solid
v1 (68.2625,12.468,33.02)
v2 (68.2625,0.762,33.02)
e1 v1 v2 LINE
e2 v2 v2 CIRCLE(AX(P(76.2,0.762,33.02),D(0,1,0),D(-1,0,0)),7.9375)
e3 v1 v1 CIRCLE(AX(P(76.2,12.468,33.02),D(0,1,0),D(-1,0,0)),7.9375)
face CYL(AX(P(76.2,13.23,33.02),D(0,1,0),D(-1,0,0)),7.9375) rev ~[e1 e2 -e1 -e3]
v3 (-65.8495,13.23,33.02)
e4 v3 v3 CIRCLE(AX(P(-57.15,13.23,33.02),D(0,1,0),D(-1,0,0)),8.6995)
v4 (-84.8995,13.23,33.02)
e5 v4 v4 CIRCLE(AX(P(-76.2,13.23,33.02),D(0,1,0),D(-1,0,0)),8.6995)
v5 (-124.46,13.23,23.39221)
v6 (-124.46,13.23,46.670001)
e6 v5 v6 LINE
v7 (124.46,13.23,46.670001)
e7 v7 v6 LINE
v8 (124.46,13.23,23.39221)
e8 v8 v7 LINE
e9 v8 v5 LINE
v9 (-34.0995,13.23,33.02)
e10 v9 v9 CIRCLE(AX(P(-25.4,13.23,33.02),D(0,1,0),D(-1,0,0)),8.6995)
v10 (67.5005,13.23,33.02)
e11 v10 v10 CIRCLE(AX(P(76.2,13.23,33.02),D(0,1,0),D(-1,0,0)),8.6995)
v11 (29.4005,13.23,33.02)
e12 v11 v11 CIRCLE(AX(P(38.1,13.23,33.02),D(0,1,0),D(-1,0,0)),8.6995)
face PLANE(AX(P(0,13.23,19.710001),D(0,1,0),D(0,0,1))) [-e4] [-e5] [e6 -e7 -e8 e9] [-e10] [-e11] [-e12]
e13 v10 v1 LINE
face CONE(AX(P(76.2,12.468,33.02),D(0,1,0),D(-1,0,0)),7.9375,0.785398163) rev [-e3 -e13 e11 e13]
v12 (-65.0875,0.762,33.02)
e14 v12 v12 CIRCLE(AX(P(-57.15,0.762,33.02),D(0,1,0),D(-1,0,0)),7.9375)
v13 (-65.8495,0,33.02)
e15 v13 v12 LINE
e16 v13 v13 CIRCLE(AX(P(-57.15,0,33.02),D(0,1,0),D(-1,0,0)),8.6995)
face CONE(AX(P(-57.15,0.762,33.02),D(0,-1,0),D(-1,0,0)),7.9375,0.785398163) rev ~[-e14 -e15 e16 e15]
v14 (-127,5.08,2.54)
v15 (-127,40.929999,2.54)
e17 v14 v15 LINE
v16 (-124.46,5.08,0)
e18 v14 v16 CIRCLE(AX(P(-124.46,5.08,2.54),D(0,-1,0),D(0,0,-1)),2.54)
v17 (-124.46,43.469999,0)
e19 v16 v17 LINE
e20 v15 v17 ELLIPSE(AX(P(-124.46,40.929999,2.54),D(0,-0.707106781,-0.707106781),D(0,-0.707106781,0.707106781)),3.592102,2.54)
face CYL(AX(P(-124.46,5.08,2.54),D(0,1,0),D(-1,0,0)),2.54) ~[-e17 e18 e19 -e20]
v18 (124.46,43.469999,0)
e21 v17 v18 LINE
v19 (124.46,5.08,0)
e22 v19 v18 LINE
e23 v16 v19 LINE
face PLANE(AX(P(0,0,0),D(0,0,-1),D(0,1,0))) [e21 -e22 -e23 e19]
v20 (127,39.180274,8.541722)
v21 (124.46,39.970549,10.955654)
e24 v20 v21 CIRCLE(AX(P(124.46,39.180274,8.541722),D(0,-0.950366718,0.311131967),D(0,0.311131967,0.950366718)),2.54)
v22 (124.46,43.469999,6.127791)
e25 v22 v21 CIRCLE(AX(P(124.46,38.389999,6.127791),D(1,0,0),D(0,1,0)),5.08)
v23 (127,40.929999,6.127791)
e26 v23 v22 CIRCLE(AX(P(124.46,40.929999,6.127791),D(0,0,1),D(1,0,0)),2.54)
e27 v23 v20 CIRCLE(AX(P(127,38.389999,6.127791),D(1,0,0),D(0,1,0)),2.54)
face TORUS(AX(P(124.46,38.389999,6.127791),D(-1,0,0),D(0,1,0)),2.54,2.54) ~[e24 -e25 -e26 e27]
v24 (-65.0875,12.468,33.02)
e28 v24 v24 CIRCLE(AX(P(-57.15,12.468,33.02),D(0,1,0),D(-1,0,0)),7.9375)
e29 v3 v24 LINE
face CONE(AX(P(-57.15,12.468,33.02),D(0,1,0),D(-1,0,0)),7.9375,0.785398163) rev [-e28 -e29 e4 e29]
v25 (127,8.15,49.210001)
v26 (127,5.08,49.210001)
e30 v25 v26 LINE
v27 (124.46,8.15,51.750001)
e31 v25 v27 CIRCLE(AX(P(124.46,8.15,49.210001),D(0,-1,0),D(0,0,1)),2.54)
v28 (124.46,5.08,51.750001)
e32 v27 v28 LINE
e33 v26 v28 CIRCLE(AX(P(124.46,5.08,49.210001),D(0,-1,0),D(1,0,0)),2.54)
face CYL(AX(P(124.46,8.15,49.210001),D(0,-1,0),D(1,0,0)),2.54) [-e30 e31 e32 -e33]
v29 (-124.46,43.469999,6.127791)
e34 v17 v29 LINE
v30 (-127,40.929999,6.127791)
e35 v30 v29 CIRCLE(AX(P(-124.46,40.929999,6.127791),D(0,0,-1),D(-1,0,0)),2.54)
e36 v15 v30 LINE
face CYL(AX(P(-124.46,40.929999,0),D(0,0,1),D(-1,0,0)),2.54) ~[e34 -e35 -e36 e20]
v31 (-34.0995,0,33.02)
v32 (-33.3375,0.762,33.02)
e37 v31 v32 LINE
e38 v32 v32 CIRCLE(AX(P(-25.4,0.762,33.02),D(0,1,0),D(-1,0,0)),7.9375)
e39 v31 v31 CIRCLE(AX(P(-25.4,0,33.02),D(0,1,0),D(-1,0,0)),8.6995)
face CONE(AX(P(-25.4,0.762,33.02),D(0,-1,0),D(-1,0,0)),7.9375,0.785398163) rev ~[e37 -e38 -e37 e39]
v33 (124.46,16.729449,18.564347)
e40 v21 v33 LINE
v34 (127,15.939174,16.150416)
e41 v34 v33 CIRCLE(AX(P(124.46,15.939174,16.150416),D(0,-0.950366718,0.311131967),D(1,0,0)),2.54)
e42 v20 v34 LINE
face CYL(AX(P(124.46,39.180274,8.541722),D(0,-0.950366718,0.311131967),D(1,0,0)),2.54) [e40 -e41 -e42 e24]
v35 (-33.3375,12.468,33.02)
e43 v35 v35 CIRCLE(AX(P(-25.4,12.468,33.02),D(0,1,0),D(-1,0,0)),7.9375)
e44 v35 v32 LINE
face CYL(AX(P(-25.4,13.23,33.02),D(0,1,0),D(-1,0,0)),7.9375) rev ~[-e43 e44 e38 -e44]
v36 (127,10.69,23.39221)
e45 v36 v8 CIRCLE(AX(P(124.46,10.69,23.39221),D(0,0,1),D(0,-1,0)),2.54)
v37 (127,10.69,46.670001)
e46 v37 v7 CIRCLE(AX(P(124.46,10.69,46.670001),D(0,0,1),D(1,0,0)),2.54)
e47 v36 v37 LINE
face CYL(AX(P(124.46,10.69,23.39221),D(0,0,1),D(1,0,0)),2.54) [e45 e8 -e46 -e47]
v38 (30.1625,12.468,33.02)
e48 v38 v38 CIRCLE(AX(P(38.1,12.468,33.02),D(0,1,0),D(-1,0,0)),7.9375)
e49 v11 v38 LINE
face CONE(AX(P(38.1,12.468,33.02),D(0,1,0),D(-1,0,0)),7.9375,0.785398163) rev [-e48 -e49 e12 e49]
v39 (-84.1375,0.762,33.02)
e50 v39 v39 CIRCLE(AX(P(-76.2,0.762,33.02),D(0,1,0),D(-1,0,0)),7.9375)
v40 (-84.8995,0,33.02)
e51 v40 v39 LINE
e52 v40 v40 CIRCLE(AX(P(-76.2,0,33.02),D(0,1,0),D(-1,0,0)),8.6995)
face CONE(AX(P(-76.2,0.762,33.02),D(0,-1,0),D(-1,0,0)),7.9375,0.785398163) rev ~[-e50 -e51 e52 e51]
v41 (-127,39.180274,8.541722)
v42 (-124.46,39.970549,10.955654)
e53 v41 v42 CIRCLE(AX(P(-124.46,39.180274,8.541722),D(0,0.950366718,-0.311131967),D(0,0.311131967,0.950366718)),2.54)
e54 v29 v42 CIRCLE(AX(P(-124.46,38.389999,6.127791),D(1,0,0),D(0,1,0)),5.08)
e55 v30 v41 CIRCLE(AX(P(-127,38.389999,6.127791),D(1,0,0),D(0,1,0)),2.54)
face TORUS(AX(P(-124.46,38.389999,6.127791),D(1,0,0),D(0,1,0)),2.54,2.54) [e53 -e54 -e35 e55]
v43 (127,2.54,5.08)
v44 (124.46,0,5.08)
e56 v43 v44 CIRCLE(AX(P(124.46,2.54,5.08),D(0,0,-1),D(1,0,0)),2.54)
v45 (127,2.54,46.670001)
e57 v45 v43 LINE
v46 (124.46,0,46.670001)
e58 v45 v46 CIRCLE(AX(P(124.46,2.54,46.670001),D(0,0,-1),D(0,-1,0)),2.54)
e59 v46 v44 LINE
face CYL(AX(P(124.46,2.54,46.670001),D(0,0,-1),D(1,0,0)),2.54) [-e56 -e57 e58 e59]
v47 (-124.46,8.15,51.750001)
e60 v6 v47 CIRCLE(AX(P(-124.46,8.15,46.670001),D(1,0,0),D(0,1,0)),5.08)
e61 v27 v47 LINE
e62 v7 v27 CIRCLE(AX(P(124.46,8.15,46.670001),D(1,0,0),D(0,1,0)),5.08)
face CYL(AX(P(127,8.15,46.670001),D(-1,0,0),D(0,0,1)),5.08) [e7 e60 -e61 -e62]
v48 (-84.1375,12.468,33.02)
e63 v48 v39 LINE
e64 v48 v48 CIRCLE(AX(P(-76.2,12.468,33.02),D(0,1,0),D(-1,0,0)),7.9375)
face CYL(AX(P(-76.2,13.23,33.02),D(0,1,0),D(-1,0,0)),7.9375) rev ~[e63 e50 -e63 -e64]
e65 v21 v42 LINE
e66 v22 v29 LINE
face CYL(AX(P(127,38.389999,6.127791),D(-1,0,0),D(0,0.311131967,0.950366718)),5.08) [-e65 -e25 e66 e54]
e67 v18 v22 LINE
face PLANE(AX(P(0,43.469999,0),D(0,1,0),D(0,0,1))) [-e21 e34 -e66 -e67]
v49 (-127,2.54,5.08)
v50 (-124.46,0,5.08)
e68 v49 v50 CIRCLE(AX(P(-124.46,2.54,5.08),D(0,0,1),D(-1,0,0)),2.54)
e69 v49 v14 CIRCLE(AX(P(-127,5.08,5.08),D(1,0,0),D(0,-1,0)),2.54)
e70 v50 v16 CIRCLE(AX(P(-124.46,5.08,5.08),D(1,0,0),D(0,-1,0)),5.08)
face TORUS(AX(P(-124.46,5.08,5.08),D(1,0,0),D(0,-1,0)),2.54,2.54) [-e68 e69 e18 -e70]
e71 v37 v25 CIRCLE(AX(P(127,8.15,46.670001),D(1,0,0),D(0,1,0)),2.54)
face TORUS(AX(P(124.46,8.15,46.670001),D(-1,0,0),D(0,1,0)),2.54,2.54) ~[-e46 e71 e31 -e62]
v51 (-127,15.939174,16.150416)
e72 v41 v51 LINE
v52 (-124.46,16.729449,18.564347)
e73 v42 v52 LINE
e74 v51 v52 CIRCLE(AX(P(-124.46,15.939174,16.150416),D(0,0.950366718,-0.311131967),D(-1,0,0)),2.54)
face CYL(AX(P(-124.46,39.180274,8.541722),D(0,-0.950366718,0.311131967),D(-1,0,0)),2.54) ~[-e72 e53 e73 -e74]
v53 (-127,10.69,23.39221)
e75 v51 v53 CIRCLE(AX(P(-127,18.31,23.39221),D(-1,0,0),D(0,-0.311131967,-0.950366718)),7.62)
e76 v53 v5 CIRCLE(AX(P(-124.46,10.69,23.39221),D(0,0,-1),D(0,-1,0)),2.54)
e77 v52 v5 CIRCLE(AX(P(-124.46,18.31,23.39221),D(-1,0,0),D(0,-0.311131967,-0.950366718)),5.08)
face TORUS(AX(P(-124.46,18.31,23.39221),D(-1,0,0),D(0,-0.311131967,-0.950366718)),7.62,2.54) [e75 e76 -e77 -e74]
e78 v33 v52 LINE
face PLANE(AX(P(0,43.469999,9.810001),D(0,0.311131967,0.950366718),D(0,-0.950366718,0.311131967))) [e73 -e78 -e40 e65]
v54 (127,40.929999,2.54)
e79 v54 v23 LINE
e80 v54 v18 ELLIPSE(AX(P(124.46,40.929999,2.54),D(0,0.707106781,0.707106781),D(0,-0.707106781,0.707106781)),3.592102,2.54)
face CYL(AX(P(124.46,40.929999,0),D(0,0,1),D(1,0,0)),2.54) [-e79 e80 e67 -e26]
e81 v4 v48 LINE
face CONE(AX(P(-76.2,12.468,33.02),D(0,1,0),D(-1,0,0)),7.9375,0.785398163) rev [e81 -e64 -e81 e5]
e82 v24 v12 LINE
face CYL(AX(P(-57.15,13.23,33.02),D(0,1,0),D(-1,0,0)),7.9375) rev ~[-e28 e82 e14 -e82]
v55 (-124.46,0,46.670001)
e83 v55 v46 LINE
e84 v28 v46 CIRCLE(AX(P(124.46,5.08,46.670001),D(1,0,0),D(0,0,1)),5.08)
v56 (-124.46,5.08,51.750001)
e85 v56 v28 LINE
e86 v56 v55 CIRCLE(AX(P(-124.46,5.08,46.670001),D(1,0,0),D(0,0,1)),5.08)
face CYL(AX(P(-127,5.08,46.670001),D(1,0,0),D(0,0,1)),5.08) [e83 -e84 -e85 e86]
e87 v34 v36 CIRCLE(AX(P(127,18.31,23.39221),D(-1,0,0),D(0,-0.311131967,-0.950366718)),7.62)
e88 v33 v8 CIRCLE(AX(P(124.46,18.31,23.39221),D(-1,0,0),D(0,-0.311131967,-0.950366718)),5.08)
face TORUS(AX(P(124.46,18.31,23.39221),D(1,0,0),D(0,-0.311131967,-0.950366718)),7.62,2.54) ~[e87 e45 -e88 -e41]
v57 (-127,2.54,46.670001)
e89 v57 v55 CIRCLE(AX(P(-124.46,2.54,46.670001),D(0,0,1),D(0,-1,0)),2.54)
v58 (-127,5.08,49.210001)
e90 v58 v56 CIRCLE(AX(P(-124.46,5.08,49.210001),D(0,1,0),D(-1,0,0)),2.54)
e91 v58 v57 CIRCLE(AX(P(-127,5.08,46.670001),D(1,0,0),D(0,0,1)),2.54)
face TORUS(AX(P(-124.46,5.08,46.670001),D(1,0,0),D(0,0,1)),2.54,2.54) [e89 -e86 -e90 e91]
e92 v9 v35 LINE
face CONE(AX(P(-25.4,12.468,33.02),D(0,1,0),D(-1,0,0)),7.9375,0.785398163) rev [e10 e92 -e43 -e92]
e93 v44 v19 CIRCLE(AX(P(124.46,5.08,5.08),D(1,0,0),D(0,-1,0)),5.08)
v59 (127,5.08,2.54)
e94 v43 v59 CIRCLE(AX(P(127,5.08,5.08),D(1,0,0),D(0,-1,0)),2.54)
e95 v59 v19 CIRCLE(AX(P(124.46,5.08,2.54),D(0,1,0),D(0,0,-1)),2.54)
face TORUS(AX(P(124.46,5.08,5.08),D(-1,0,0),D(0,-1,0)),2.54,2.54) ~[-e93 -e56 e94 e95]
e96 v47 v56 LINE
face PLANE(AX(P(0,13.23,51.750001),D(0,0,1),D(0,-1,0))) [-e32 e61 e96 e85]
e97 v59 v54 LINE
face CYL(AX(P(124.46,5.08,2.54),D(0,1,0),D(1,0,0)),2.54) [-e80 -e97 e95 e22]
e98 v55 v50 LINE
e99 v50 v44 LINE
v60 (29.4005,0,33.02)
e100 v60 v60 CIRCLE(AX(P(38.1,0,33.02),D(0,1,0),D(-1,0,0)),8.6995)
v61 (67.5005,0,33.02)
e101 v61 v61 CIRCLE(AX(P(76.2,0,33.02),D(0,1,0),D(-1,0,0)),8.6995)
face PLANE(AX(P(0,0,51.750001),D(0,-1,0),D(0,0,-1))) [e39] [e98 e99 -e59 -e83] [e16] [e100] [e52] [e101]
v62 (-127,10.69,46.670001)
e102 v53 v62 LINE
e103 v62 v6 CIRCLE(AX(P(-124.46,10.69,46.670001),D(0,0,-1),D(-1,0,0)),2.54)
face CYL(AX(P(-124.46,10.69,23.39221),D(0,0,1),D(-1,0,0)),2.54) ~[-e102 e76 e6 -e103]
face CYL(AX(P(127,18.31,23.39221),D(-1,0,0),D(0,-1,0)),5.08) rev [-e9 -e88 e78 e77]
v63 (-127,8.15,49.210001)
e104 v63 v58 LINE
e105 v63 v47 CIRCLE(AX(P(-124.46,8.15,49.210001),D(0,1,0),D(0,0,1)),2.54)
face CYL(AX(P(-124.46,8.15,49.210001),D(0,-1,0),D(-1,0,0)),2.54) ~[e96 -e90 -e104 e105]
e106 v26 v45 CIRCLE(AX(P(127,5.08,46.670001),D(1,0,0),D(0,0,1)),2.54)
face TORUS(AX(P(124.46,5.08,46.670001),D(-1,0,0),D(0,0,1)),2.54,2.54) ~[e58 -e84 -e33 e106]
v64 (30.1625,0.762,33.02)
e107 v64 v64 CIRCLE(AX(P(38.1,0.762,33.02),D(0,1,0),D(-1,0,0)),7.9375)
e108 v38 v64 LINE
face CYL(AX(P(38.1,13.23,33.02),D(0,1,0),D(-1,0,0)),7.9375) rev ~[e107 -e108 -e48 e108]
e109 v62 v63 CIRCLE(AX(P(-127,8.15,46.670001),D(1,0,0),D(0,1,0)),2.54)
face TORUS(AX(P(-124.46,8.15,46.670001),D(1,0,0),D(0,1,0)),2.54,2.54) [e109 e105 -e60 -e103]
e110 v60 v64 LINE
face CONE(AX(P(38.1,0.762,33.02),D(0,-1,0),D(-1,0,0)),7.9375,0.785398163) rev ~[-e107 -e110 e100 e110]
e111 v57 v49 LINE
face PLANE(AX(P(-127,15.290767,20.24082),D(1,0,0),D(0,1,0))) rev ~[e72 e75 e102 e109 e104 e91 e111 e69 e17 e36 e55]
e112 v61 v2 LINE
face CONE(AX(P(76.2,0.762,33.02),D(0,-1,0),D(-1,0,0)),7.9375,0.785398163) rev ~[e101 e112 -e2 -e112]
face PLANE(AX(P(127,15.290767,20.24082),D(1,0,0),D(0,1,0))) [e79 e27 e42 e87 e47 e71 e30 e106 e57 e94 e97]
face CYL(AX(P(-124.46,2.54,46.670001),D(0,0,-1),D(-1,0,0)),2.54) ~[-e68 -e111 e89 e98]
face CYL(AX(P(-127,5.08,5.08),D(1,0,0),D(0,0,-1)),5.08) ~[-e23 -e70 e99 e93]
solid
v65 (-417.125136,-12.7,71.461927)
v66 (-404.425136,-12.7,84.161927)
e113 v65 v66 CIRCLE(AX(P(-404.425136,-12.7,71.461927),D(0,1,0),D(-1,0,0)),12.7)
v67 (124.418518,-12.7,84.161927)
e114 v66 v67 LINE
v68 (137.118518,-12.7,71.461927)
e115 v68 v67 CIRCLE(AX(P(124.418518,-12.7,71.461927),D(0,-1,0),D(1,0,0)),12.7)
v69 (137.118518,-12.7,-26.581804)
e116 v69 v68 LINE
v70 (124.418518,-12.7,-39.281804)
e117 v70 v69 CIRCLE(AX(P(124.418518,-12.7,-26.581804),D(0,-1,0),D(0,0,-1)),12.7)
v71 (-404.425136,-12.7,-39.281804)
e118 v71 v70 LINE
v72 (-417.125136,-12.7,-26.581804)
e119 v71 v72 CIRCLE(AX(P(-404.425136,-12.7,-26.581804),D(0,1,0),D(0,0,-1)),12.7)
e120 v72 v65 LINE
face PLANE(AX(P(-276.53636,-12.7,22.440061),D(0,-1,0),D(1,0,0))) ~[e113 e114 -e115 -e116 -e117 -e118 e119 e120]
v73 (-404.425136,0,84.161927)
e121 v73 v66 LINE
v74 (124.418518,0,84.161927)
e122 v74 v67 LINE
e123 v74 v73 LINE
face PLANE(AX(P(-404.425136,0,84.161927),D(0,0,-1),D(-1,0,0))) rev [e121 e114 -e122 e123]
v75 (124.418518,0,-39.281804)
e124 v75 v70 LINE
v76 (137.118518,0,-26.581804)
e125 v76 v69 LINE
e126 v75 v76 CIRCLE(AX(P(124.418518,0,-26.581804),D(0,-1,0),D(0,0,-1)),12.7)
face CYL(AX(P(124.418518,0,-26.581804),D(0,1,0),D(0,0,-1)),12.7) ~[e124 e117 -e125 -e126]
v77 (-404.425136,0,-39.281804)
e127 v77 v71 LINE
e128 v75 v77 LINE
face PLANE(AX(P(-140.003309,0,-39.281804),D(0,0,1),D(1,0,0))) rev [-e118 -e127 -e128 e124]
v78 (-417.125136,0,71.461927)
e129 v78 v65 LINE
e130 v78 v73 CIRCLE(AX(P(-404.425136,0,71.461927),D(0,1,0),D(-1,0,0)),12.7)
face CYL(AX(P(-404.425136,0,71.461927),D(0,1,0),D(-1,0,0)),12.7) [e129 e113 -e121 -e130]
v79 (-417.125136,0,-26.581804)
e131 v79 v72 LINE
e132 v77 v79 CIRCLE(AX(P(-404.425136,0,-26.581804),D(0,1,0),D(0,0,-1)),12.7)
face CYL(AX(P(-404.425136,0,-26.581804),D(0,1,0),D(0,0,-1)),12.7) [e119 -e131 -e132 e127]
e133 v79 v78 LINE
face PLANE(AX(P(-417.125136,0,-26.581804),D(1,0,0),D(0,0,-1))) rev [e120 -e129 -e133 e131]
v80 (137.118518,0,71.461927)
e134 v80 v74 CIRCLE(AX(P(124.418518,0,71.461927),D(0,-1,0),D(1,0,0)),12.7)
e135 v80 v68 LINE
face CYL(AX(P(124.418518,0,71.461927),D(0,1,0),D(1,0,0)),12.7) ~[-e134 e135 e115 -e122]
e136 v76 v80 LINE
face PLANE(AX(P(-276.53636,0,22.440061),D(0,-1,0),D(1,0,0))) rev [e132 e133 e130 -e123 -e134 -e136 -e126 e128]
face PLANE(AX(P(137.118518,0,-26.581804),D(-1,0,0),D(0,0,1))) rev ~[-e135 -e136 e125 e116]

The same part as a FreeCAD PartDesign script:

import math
import FreeCAD as App
import Part
import Sketcher

V = App.Vector
Q = App.Units.Quantity


def edges_at(feature, points):
    """Names of the edges that pass closest to the given points."""
    edges = feature.Shape.Edges
    near = lambda p: min(range(len(edges)), key=lambda i: edges[i].distToShape(Part.Vertex(*p))[0])
    return sorted({f"Edge{near(p) + 1}" for p in points})

doc = App.newDocument("Part")
body = doc.addObject("PartDesign::Body", "Body")

# Sketch on YZ plane
sketch1 = doc.addObject("Sketcher::SketchObject", "Sketch")
body.addObject(sketch1)
sketch1.AttachmentSupport = (doc.YZ_Plane, [""])
sketch1.MapMode = "FlatFace"
sketch1.addGeometry(Part.LineSegment(V(13, 52, 0), V(0, 52, 0)), False)
sketch1.addGeometry(Part.LineSegment(V(0, 52, 0), V(0, 0, 0)), False)
sketch1.addGeometry(Part.LineSegment(V(0, 0, 0), V(43, 0, 0)), False)
sketch1.addGeometry(Part.LineSegment(V(43, 0, 0), V(43, 10, 0)), False)
sketch1.addGeometry(Part.LineSegment(V(43, 10, 0), V(13, 20, 0)), False)
sketch1.addGeometry(Part.LineSegment(V(13, 20, 0), V(13, 52, 0)), False)
sketch1.addConstraint(Sketcher.Constraint("Coincident", 0, 2, 1, 1))
sketch1.addConstraint(Sketcher.Constraint("Coincident", 1, 2, 2, 1))
sketch1.addConstraint(Sketcher.Constraint("Coincident", 2, 2, 3, 1))
sketch1.addConstraint(Sketcher.Constraint("Coincident", 3, 2, 4, 1))
sketch1.addConstraint(Sketcher.Constraint("Coincident", 4, 2, 5, 1))
sketch1.addConstraint(Sketcher.Constraint("Coincident", 5, 2, 0, 1))
sketch1.addConstraint(Sketcher.Constraint("Horizontal", 0))
sketch1.addConstraint(Sketcher.Constraint("Vertical", 1))
sketch1.addConstraint(Sketcher.Constraint("Horizontal", 2))
sketch1.addConstraint(Sketcher.Constraint("Vertical", 3))
sketch1.addConstraint(Sketcher.Constraint("Vertical", 5))
sketch1.addConstraint(Sketcher.Constraint("Coincident", 1, 2, -1, 1))
sketch1.addConstraint(Sketcher.Constraint("DistanceX", 0, 2, 0, 1, Q("13.23 mm")))
sketch1.addConstraint(Sketcher.Constraint("DistanceX", 2, 1, 2, 2, Q("43.469999 mm")))
sketch1.addConstraint(Sketcher.Constraint("DistanceY", 1, 2, 1, 1, Q("51.750001 mm")))
sketch1.addConstraint(Sketcher.Constraint("DistanceY", 3, 1, 3, 2, Q("9.810001 mm")))
sketch1.addConstraint(Sketcher.Constraint("DistanceY", 5, 1, 5, 2, Q("32.04 mm")))
pad1 = doc.addObject("PartDesign::Pad", "Pad")
body.addObject(pad1)
pad1.Profile = sketch1
pad1.Length = Q("10 in")
pad1.Midplane = True
doc.recompute()

fillet = doc.addObject("PartDesign::Fillet", "Fillet")
body.addObject(fillet)
fillet.Base = (pad1, edges_at(pad1, [
    (0, 0, 51.75),
    (0, 0, 0),
    (0, 43.47, 9.81),
    (0, 13.23, 51.75),
    (0, 13.23, 19.71),
]))
fillet.Radius = Q("0.2 in")
doc.recompute()

fillet2 = doc.addObject("PartDesign::Fillet", "Fillet001")
body.addObject(fillet2)
fillet2.Base = (fillet, edges_at(fillet, [(-127, 0, 25.875), (127, 0, 25.875)]))
fillet2.Radius = Q("0.1 in")

# Sketch on XZ plane
sketch2 = doc.addObject("Sketcher::SketchObject", "Sketch001")
body.addObject(sketch2)
sketch2.AttachmentSupport = (doc.XZ_Plane, [""])
sketch2.MapMode = "FlatFace"
sketch2.AttachmentOffset = App.Placement(V(0, 0, -13.23), App.Rotation())
sketch2.addGeometry(Part.Circle(V(76, 33, 0), V(0, 0, 1), 8), False)
sketch2.addGeometry(Part.Circle(V(38, 33, 0), V(0, 0, 1), 8), False)
sketch2.addGeometry(Part.Circle(V(-25, 33, 0), V(0, 0, 1), 8), False)
sketch2.addGeometry(Part.Circle(V(-57, 33, 0), V(0, 0, 1), 8), False)
sketch2.addGeometry(Part.Circle(V(-76, 33, 0), V(0, 0, 1), 8), False)
sketch2.addConstraint(Sketcher.Constraint("Equal", 0, 1))
sketch2.addConstraint(Sketcher.Constraint("Equal", 1, 2))
sketch2.addConstraint(Sketcher.Constraint("Equal", 2, 3))
sketch2.addConstraint(Sketcher.Constraint("Equal", 3, 4))
sketch2.addConstraint(Sketcher.Constraint("Symmetric", 0, 3, 4, 3, -2))
sketch2.addConstraint(Sketcher.Constraint("Horizontal", 0, 3, 1, 3))
sketch2.addConstraint(Sketcher.Constraint("Horizontal", 1, 3, 2, 3))
sketch2.addConstraint(Sketcher.Constraint("Horizontal", 2, 3, 3, 3))
sketch2.addConstraint(Sketcher.Constraint("Diameter", 0, Q("0.625 in")))
sketch2.addConstraint(Sketcher.Constraint("DistanceX", -1, 1, 0, 3, Q("3 in")))
sketch2.addConstraint(Sketcher.Constraint("DistanceX", 2, 3, -1, 1, Q("1 in")))
sketch2.addConstraint(Sketcher.Constraint("DistanceY", -1, 1, 0, 3, Q("1.3 in")))
sketch2.addConstraint(Sketcher.Constraint("DistanceX", -1, 1, 1, 3, Q("1.5 in")))
sketch2.addConstraint(Sketcher.Constraint("DistanceX", 3, 3, -1, 1, Q("2.25 in")))
pocket1 = doc.addObject("PartDesign::Pocket", "Pocket")
body.addObject(pocket1)
pocket1.Profile = sketch2
pocket1.Type = "ThroughAll"
pocket1.Reversed = True
doc.recompute()

chamfer = doc.addObject("PartDesign::Chamfer", "Chamfer")
body.addObject(chamfer)
chamfer.Base = (pocket1, edges_at(pocket1, [
    (68.263, 6.615, 33.02),
    (84.138, 13.23, 33.02),
    (84.138, 0, 33.02),
    (30.163, 6.615, 33.02),
    (46.038, 13.23, 33.02),
    (46.038, 0, 33.02),
    (-33.337, 6.615, 33.02),
    (-17.462, 13.23, 33.02),
    (-17.462, 0, 33.02),
    (-65.088, 6.615, 33.02),
    (-49.212, 13.23, 33.02),
    (-49.212, 0, 33.02),
    (-84.138, 6.615, 33.02),
    (-68.263, 13.23, 33.02),
    (-68.263, 0, 33.02),
]))
chamfer.Size = Q("0.03 in")
body2 = doc.addObject("PartDesign::Body", "Body001")

# Sketch on XZ plane
sketch3 = doc.addObject("Sketcher::SketchObject", "Sketch002")
body2.addObject(sketch3)
sketch3.AttachmentSupport = (doc.getObject("XZ_Plane001"), [""])
sketch3.MapMode = "FlatFace"
sketch3.addGeometry(Part.ArcOfCircle(Part.Circle(V(124, 71, 0), V(0, 0, 1), 13), math.radians(0), math.radians(90)), False)
sketch3.addGeometry(Part.LineSegment(V(124, 84, 0), V(-140, 84, 0)), False)
sketch3.addGeometry(Part.LineSegment(V(-140, 84, 0), V(-140, -39, 0)), False)
sketch3.addGeometry(Part.LineSegment(V(-140, -39, 0), V(124, -39, 0)), False)
sketch3.addGeometry(Part.ArcOfCircle(Part.Circle(V(124, -27, 0), V(0, 0, 1), 13), math.radians(-90), math.radians(0)), False)
sketch3.addGeometry(Part.LineSegment(V(137, -27, 0), V(137, 71, 0)), False)
sketch3.addConstraint(Sketcher.Constraint("Tangent", 0, 2, 1, 1))
sketch3.addConstraint(Sketcher.Constraint("Coincident", 1, 2, 2, 1))
sketch3.addConstraint(Sketcher.Constraint("Coincident", 2, 2, 3, 1))
sketch3.addConstraint(Sketcher.Constraint("Tangent", 3, 2, 4, 1))
sketch3.addConstraint(Sketcher.Constraint("Tangent", 4, 2, 5, 1))
sketch3.addConstraint(Sketcher.Constraint("Tangent", 5, 2, 0, 1))
sketch3.addConstraint(Sketcher.Constraint("Horizontal", 1))
sketch3.addConstraint(Sketcher.Constraint("Vertical", 2))
sketch3.addConstraint(Sketcher.Constraint("Horizontal", 3))
sketch3.addConstraint(Sketcher.Constraint("Vertical", 5))
sketch3.addConstraint(Sketcher.Constraint("Equal", 0, 4))
sketch3.addConstraint(Sketcher.Constraint("Radius", 0, Q("0.5 in")))
sketch3.addConstraint(Sketcher.Constraint("DistanceY", 2, 2, 2, 1, Q("123.443731 mm")))
sketch3.addConstraint(Sketcher.Constraint("DistanceX", 1, 2, 1, 1, Q("264.421827 mm")))
sketch3.addConstraint(Sketcher.Constraint("DistanceX", -1, 1, 0, 3, Q("124.418518 mm")))
sketch3.addConstraint(Sketcher.Constraint("DistanceY", -1, 1, 0, 3, Q("71.461927 mm")))
pad2 = doc.addObject("PartDesign::Pad", "Pad001")
body2.addObject(pad2)
pad2.Profile = sketch3
pad2.Length = Q("0.5 in")
body3 = doc.addObject("PartDesign::Body", "Body002")
doc.recompute()

body3.BaseFeature = body2
doc.recompute()

mirroring = doc.addObject("Part::Mirroring", "Mirroring")
mirroring.Source = body2
mirroring.Base = V(-140.003309, -6.35, 22.440061)
mirroring.Normal = V(-1, 0, 0)
body4 = doc.addObject("PartDesign::Body", "Body003")
body4.BaseFeature = mirroring
boolean = doc.addObject("PartDesign::Boolean", "Boolean")
body3.addObject(boolean)
boolean.Type = "Fuse"
boolean.addObjects([body4])
doc.recompute()
mirroring.Visibility = False

doc.recompute()
